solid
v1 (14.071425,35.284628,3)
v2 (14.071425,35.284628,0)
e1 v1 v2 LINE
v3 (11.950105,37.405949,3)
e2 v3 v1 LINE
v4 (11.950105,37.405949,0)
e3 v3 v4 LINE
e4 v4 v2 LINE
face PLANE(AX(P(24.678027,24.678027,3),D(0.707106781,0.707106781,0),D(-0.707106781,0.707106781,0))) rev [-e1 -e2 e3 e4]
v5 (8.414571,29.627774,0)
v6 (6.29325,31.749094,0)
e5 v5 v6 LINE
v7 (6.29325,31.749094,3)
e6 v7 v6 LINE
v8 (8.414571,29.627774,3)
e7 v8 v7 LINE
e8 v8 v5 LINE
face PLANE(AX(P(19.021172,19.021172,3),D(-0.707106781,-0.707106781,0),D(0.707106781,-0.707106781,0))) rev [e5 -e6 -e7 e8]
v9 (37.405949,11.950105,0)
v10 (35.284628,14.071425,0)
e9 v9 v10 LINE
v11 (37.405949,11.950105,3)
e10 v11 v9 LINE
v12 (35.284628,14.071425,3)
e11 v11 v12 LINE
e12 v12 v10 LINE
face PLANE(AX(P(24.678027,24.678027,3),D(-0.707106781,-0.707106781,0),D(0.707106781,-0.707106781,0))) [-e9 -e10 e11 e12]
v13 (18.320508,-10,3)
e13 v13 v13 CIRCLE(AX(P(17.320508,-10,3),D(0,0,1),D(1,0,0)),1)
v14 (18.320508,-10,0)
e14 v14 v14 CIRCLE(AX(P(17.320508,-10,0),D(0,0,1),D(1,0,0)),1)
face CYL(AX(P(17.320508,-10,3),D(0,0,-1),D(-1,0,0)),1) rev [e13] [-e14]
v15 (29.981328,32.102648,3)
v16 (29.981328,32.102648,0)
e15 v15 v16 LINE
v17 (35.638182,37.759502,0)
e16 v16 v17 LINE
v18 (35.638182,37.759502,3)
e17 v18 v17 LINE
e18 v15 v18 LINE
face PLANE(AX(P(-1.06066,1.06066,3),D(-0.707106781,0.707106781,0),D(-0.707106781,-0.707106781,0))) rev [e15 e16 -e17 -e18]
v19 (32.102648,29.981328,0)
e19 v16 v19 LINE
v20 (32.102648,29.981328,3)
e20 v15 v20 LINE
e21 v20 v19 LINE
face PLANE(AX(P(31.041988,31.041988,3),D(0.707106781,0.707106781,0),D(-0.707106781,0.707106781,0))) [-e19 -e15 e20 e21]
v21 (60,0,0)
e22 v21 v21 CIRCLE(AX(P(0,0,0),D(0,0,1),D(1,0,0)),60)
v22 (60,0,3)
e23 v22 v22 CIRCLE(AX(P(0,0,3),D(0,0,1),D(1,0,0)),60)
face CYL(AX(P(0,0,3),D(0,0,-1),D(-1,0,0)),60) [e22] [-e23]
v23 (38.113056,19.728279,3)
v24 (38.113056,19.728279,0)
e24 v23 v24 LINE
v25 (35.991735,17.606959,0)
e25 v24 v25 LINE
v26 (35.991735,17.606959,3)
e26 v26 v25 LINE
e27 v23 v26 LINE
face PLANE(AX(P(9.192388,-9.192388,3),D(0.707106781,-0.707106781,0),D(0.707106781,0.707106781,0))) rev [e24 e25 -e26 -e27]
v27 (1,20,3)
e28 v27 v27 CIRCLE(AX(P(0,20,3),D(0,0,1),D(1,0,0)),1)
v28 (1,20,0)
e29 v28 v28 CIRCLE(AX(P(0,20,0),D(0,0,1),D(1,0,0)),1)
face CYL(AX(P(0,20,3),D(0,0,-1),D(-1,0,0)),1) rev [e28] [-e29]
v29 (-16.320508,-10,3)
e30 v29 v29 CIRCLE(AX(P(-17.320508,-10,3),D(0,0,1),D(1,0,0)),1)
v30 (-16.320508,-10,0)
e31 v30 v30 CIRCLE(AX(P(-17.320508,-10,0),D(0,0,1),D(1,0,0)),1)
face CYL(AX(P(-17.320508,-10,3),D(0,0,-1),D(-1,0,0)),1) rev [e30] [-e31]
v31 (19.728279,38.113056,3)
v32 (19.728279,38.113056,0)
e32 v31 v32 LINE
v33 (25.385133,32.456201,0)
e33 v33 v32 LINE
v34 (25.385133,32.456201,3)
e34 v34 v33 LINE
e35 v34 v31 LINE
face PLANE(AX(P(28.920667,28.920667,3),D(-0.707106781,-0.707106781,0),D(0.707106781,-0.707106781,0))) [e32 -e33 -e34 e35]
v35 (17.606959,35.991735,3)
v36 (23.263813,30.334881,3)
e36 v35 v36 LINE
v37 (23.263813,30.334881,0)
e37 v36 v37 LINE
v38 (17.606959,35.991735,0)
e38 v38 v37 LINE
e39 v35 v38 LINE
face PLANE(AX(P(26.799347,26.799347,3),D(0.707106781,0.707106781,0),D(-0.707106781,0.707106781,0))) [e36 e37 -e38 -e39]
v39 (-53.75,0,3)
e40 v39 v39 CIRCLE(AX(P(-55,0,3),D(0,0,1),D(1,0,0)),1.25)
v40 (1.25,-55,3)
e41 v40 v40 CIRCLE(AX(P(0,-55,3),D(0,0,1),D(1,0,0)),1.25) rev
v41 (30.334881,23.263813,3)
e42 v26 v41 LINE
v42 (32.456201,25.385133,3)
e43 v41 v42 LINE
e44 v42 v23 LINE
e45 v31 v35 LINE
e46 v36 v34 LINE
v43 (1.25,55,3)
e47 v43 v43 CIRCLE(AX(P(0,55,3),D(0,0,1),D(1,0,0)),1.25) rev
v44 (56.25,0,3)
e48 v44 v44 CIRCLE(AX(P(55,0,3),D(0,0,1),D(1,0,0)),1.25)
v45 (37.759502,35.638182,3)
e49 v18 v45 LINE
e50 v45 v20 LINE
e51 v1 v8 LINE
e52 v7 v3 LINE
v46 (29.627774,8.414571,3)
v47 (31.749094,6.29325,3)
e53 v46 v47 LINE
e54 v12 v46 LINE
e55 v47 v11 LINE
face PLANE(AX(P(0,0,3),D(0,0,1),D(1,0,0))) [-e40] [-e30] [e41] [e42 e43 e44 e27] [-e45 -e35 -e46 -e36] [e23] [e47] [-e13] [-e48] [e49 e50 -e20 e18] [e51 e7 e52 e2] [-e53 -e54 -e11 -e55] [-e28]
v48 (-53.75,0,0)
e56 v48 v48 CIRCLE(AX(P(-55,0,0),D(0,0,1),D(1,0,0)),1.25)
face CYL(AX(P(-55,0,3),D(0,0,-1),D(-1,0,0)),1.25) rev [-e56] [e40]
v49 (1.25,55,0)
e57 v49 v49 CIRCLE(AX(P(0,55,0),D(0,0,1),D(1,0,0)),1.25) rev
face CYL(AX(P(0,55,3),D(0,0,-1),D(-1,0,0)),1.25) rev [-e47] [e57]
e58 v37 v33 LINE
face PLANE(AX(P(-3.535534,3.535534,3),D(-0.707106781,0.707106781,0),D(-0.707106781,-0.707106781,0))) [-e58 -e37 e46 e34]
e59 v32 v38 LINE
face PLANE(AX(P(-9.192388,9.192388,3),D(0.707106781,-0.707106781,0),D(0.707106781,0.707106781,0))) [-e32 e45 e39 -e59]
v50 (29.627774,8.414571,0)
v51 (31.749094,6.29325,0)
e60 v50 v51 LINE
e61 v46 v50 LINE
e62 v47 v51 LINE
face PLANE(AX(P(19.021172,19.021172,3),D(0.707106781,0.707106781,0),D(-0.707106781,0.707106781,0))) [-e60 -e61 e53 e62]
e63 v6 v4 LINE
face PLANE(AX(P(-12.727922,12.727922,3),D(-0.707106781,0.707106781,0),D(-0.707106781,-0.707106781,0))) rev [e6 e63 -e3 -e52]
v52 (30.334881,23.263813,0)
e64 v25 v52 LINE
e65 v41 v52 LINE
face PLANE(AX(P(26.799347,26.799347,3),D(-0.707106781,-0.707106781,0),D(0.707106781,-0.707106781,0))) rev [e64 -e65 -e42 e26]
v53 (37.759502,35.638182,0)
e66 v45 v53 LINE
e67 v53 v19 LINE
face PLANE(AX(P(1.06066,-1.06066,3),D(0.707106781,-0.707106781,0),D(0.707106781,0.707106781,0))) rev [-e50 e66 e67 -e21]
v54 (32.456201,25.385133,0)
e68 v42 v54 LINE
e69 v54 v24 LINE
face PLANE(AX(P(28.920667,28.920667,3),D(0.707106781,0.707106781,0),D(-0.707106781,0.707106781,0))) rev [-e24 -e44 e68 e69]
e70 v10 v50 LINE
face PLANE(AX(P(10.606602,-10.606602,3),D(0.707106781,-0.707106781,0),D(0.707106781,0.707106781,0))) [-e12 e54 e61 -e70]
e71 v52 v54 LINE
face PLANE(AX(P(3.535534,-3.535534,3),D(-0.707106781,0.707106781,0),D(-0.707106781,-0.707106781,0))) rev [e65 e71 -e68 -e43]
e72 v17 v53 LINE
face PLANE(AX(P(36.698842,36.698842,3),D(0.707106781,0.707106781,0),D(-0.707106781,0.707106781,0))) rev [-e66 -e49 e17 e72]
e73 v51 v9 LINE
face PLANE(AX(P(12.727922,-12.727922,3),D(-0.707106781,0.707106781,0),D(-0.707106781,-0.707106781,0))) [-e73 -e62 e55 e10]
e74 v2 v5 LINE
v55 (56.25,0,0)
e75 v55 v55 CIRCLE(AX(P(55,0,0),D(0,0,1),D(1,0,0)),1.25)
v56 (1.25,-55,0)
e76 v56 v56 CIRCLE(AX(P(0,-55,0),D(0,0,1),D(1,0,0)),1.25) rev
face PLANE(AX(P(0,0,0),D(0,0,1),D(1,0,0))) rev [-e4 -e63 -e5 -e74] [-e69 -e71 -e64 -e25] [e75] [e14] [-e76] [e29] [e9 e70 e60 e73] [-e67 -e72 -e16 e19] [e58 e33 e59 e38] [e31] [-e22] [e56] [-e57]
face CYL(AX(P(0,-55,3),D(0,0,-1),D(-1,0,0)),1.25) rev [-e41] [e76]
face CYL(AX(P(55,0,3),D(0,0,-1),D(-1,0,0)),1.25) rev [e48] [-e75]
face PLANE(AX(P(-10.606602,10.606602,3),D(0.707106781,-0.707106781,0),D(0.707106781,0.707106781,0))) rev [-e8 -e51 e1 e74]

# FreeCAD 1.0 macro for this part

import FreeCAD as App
import Part
import Sketcher
from FreeCAD import Vector
Q = App.Units.Quantity


def add_polygon(sketch, points):
    """Adds a closed chain of lines whose ends are joined by coincident constraints."""
    first, n = sketch.GeometryCount, len(points)
    for a, b in zip(points, points[1:] + points[:1]):
        sketch.addGeometry(Part.LineSegment(App.Vector(*a, 0), App.Vector(*b, 0)), False)
    for i in range(n):
        sketch.addConstraint(Sketcher.Constraint("Coincident", first + i, 2, first + (i + 1) % n, 1))

doc = App.newDocument("Part")
body = doc.addObject("PartDesign::Body", "Body")

sketch1 = body.newObject("Sketcher::SketchObject", "Sketch")
sketch1.AttachmentSupport = (doc.getObject("XY_Plane"), [""])
sketch1.MapMode = "FlatFace"
sketch1.addGeometry(Part.Circle(Vector(0, 0, 0), Vector(0, 0, 1), 60), False)
sketch1.addGeometry(Part.Circle(Vector(-17.3, -10, 0), Vector(0, 0, 1), 1), False)
sketch1.addGeometry(Part.Circle(Vector(0, -55, 0), Vector(0, 0, 1), 1.2), False)
sketch1.addGeometry(Part.Circle(Vector(17.3, -10, 0), Vector(0, 0, 1), 1), False)
sketch1.addGeometry(Part.Circle(Vector(-55, 0, 0), Vector(0, 0, 1), 1.2), False)
sketch1.addGeometry(Part.Circle(Vector(0, 20, 0), Vector(0, 0, 1), 1), False)
add_polygon(sketch1, [(37.4, 12), (31.7, 6.3), (29.6, 8.4), (35.3, 14.1)])
sketch1.addGeometry(Part.Circle(Vector(55, 0, 0), Vector(0, 0, 1), 1.2), False)
add_polygon(sketch1, [(38.1, 19.7), (36, 17.6), (30.3, 23.3), (32.5, 25.4)])
add_polygon(sketch1, [(6.3, 31.7), (12, 37.4), (14.1, 35.3), (8.4, 29.6)])
add_polygon(sketch1, [(25.4, 32.5), (23.3, 30.3), (17.6, 36), (19.7, 38.1)])
sketch1.addGeometry(Part.Circle(Vector(0, 55, 0), Vector(0, 0, 1), 1.2), False)
add_polygon(sketch1, [(32.1, 30), (30, 32.1), (35.6, 37.8), (37.8, 35.6)])
sketch1.addConstraint(Sketcher.Constraint("Coincident", 0, 3, -1, 1))
sketch1.addConstraint(Sketcher.Constraint("Equal", 1, 3))
sketch1.addConstraint(Sketcher.Constraint("Equal", 2, 4))
sketch1.addConstraint(Sketcher.Constraint("Equal", 3, 5))
sketch1.addConstraint(Sketcher.Constraint("Equal", 4, 10))
sketch1.addConstraint(Sketcher.Constraint("Equal", 10, 23))
sketch1.addConstraint(Sketcher.Constraint("Symmetric", 4, 3, 10, 3, -1, 1))
sketch1.addConstraint(Sketcher.Constraint("Symmetric", 2, 3, 23, 3, -1, 1))
sketch1.addConstraint(Sketcher.Constraint("Symmetric", 1, 3, 3, 3, -2))
sketch1.addConstraint(Sketcher.Constraint("PointOnObject", 2, 3, -2))
sketch1.addConstraint(Sketcher.Constraint("PointOnObject", 4, 3, -1))
sketch1.addConstraint(Sketcher.Constraint("PointOnObject", 5, 3, -2))
sketch1.addConstraint(Sketcher.Constraint("Perpendicular", 6, 7))
sketch1.addConstraint(Sketcher.Constraint("Perpendicular", 7, 8))
sketch1.addConstraint(Sketcher.Constraint("Perpendicular", 8, 9))
sketch1.addConstraint(Sketcher.Constraint("Perpendicular", 9, 11))
sketch1.addConstraint(Sketcher.Constraint("Perpendicular", 11, 12))
sketch1.addConstraint(Sketcher.Constraint("Perpendicular", 12, 13))
sketch1.addConstraint(Sketcher.Constraint("Perpendicular", 13, 14))
sketch1.addConstraint(Sketcher.Constraint("Perpendicular", 14, 15))
sketch1.addConstraint(Sketcher.Constraint("Perpendicular", 15, 16))
sketch1.addConstraint(Sketcher.Constraint("Perpendicular", 16, 17))
sketch1.addConstraint(Sketcher.Constraint("Perpendicular", 17, 18))
sketch1.addConstraint(Sketcher.Constraint("Perpendicular", 18, 19))
sketch1.addConstraint(Sketcher.Constraint("Perpendicular", 19, 20))
sketch1.addConstraint(Sketcher.Constraint("Perpendicular", 20, 21))
sketch1.addConstraint(Sketcher.Constraint("Perpendicular", 21, 22))
sketch1.addConstraint(Sketcher.Constraint("Parallel", 22, 24))
sketch1.addConstraint(Sketcher.Constraint("Perpendicular", 24, 25))
sketch1.addConstraint(Sketcher.Constraint("Perpendicular", 25, 26))
sketch1.addConstraint(Sketcher.Constraint("Perpendicular", 26, 27))
sketch1.addConstraint(Sketcher.Constraint("Equal", 9, 11))
sketch1.addConstraint(Sketcher.Constraint("Equal", 8, 12))
sketch1.addConstraint(Sketcher.Constraint("Equal", 14, 15))
sketch1.addConstraint(Sketcher.Constraint("Equal", 13, 16))
sketch1.addConstraint(Sketcher.Constraint("Equal", 18, 19))
sketch1.addConstraint(Sketcher.Constraint("Equal", 17, 20))
sketch1.addConstraint(Sketcher.Constraint("Equal", 21, 24))
sketch1.addConstraint(Sketcher.Constraint("Equal", 22, 25))
sketch1.addConstraint(Sketcher.Constraint("Diameter", 0, 120.0))
sketch1.addConstraint(Sketcher.Constraint("Diameter", 1, 2.0))
sketch1.addConstraint(Sketcher.Constraint("Diameter", 2, 2.5))
sketch1.addConstraint(Sketcher.Constraint("Angle", 6, Q("-135 deg")))
sketch1.addConstraint(Sketcher.Constraint("Distance", 6, 8.0))
sketch1.addConstraint(Sketcher.Constraint("Distance", 7, 3.0))
sketch1.addConstraint(Sketcher.Constraint("DistanceY", 1, 3, -1, 1, 10.0))
sketch1.addConstraint(Sketcher.Constraint("DistanceY", 2, 3, -1, 1, 55.0))
sketch1.addConstraint(Sketcher.Constraint("DistanceX", 4, 3, -1, 1, 55.0))
sketch1.addConstraint(Sketcher.Constraint("DistanceY", -1, 1, 5, 3, 20.0))
sketch1.addConstraint(Sketcher.Constraint("DistanceX", -1, 1, 13, 2, 32.456201))
sketch1.addConstraint(Sketcher.Constraint("DistanceY", -1, 1, 22, 2, 32.456201))
sketch1.addConstraint(Sketcher.Constraint("DistanceY", 22, 2, 25, 2, 5.303301))
sketch1.addConstraint(Sketcher.Constraint("DistanceX", 12, 2, 25, 2, 5.303301))
sketch1.addConstraint(Sketcher.Constraint("DistanceX", 1, 3, -1, 1, 17.320508))
sketch1.addConstraint(Sketcher.Constraint("DistanceY", -1, 1, 6, 2, 6.29325))
sketch1.addConstraint(Sketcher.Constraint("DistanceX", -1, 1, 8, 2, 35.284628))
sketch1.addConstraint(Sketcher.Constraint("DistanceY", -1, 1, 11, 2, 17.606959))
sketch1.addConstraint(Sketcher.Constraint("DistanceY", -1, 1, 15, 2, 37.405949))
sketch1.addConstraint(Sketcher.Constraint("DistanceX", -1, 1, 17, 2, 8.414571))
sketch1.addConstraint(Sketcher.Constraint("DistanceX", -1, 1, 20, 2, 17.606959))
pad1 = body.newObject("PartDesign::Pad", "Pad")
pad1.Profile = sketch1
pad1.Length = 3

doc.recompute()
